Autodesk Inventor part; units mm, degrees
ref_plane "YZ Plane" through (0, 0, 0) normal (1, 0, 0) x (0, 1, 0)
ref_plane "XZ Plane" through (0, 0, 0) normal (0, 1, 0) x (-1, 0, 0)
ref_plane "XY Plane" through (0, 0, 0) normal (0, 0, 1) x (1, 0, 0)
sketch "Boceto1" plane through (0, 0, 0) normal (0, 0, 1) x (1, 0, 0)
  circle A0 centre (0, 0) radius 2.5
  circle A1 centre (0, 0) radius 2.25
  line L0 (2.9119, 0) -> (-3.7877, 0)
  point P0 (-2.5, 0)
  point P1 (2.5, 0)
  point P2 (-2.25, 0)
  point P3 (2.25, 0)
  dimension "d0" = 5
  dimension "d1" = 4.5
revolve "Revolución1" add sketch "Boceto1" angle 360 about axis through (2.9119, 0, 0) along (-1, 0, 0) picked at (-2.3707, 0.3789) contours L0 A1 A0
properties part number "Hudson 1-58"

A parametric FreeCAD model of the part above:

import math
import FreeCAD as App
import Part
import Sketcher
from FreeCAD import Vector

doc = App.newDocument("Part")
body = doc.addObject("PartDesign::Body", "Body")

# Sketch on XY plane
sketch1 = body.newObject("Sketcher::SketchObject", "Sketch")
sketch1.AttachmentSupport = (doc.getObject("XY_Plane"), [""])
sketch1.MapMode = "FlatFace"
sketch1.addGeometry([
    Part.LineSegment(Vector(2.25, 0, 0), Vector(2.5, 0, 0)),
    Part.ArcOfCircle(Part.Circle(Vector(0, 0, 0), Vector(0, 0, 1), 2.5), math.radians(0), math.radians(180)),
    Part.LineSegment(Vector(-2.5, 0, 0), Vector(-2.25, 0, 0)),
    Part.ArcOfCircle(Part.Circle(Vector(0, 0, 0), Vector(0, 0, 1), 2.25), math.radians(0), math.radians(180)),
], False)
sketch1.addConstraint([
    Sketcher.Constraint("Coincident", 0, 2, 1, 1),
    Sketcher.Constraint("Coincident", 1, 2, 2, 1),
    Sketcher.Constraint("Coincident", 2, 2, 3, 2),
    Sketcher.Constraint("Coincident", 3, 1, 0, 1),
    Sketcher.Constraint("Horizontal", 0),
    Sketcher.Constraint("Horizontal", 2),
    Sketcher.Constraint("Coincident", 1, 3, -1, 1),
    Sketcher.Constraint("Coincident", 3, 3, -1, 1),
    Sketcher.Constraint("PointOnObject", 0, 2, -1),
    Sketcher.Constraint("PointOnObject", 1, 2, -1),
    Sketcher.Constraint("Radius", 1, 2.5),
    Sketcher.Constraint("Radius", 3, 2.25),
])
revolution = body.newObject("PartDesign::Revolution", "Revolution")
revolution.Profile = sketch1
revolution.ReferenceAxis = (sketch1, ["H_Axis"])
revolution.Angle = 360

doc.recompute()
